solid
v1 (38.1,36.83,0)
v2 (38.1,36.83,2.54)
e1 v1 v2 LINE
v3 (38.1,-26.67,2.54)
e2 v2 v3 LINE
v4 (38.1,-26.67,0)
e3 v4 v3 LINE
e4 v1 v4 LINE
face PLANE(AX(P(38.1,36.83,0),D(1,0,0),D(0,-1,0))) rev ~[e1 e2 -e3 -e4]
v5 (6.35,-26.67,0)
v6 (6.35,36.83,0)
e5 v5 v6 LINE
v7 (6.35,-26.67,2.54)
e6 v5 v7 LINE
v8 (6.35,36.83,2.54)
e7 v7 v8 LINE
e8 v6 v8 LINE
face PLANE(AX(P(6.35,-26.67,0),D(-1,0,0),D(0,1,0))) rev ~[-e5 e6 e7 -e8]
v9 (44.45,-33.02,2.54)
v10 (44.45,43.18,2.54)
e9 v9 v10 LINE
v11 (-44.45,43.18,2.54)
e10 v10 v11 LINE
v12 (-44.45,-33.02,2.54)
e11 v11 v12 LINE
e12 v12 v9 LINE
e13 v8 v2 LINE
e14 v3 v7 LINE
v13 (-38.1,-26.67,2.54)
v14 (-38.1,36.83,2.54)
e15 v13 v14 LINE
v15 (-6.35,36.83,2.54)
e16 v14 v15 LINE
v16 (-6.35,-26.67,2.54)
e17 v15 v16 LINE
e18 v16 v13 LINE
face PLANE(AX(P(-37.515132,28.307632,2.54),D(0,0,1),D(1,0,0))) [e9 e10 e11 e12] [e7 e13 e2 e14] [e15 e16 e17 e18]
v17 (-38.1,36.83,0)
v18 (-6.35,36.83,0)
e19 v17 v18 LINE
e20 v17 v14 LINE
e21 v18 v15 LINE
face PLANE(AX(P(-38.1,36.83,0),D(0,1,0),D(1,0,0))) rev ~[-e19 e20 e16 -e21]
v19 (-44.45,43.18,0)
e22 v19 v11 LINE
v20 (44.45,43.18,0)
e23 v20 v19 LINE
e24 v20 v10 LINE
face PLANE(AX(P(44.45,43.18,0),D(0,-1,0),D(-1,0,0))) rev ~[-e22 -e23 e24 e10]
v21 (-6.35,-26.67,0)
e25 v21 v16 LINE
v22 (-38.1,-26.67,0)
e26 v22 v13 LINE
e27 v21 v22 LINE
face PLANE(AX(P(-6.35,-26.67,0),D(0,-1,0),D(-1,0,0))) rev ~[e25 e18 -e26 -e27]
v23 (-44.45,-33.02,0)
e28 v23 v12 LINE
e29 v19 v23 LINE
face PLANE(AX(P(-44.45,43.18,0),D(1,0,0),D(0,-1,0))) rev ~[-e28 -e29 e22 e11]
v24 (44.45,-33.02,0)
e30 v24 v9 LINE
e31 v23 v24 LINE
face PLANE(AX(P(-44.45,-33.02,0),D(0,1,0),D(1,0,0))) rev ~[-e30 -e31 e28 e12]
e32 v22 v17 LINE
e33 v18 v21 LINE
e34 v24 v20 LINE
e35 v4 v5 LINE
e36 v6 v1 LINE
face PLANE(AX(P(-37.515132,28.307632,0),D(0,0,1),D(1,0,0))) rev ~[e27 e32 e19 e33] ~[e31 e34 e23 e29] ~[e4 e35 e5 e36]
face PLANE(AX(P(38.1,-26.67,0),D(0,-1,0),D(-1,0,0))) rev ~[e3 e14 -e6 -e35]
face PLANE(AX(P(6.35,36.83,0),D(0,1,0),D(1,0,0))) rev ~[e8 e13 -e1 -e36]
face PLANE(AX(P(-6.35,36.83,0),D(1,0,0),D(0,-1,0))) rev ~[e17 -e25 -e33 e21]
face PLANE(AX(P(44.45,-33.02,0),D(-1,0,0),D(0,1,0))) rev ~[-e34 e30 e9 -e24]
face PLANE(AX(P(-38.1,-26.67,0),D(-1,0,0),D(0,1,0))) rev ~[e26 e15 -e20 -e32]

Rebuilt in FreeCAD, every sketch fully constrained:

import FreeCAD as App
import Part
import Sketcher
from FreeCAD import Vector
Q = App.Units.Quantity


def add_polygon(sketch, points):
    """Adds a closed chain of lines whose ends are joined by coincident constraints."""
    first, n = sketch.GeometryCount, len(points)
    for a, b in zip(points, points[1:] + points[:1]):
        sketch.addGeometry(Part.LineSegment(App.Vector(*a, 0), App.Vector(*b, 0)), False)
    for i in range(n):
        sketch.addConstraint(Sketcher.Constraint("Coincident", first + i, 2, first + (i + 1) % n, 1))

doc = App.newDocument("Part")
body = doc.addObject("PartDesign::Body", "Body")

# Sketch on XY plane
sketch1 = body.newObject("Sketcher::SketchObject", "Sketch")
sketch1.AttachmentSupport = (doc.getObject("XY_Plane"), [""])
sketch1.MapMode = "FlatFace"
add_polygon(sketch1, [(-44, 43), (-44, -33), (44, -33), (44, 43)])  # lines 0-3
add_polygon(sketch1, [(6, -27), (6, 37), (38, 37), (38, -27)])  # lines 4-7
add_polygon(sketch1, [(-38, 37), (-6, 37), (-6, -27), (-38, -27)])  # lines 8-11
sketch1.addConstraint(Sketcher.Constraint("Vertical", 0))
sketch1.addConstraint(Sketcher.Constraint("Horizontal", 1))
sketch1.addConstraint(Sketcher.Constraint("Vertical", 2))
sketch1.addConstraint(Sketcher.Constraint("Horizontal", 3))
sketch1.addConstraint(Sketcher.Constraint("Vertical", 4))
sketch1.addConstraint(Sketcher.Constraint("Horizontal", 5))
sketch1.addConstraint(Sketcher.Constraint("Vertical", 6))
sketch1.addConstraint(Sketcher.Constraint("Horizontal", 7))
sketch1.addConstraint(Sketcher.Constraint("Horizontal", 8))
sketch1.addConstraint(Sketcher.Constraint("Vertical", 9))
sketch1.addConstraint(Sketcher.Constraint("Horizontal", 10))
sketch1.addConstraint(Sketcher.Constraint("Vertical", 11))
sketch1.addConstraint(Sketcher.Constraint("Symmetric", 4, 2, 8, 2, -2))
sketch1.addConstraint(Sketcher.Constraint("Symmetric", 6, 2, 10, 2, -2))
sketch1.addConstraint(Sketcher.Constraint("DistanceY", 0, 2, 0, 1, Q("3 in")))
sketch1.addConstraint(Sketcher.Constraint("DistanceX", 1, 1, 1, 2, Q("3.5 in")))
sketch1.addConstraint(Sketcher.Constraint("DistanceY", 4, 1, 4, 2, Q("2.5 in")))
sketch1.addConstraint(Sketcher.Constraint("DistanceX", 3, 2, 4, 2, Q("2 in")))
sketch1.addConstraint(Sketcher.Constraint("DistanceX", 8, 2, 2, 2, Q("2 in")))
sketch1.addConstraint(Sketcher.Constraint("DistanceX", 5, 1, 5, 2, Q("1.25 in")))
sketch1.addConstraint(Sketcher.Constraint("DistanceY", 0, 2, -1, 1, Q("1.3 in")))
sketch1.addConstraint(Sketcher.Constraint("DistanceY", -1, 1, 4, 2, Q("1.45 in")))
pad1 = body.newObject("PartDesign::Pad", "Pad")
pad1.Profile = sketch1
pad1.Length = Q("0.1 in")

doc.recompute()
